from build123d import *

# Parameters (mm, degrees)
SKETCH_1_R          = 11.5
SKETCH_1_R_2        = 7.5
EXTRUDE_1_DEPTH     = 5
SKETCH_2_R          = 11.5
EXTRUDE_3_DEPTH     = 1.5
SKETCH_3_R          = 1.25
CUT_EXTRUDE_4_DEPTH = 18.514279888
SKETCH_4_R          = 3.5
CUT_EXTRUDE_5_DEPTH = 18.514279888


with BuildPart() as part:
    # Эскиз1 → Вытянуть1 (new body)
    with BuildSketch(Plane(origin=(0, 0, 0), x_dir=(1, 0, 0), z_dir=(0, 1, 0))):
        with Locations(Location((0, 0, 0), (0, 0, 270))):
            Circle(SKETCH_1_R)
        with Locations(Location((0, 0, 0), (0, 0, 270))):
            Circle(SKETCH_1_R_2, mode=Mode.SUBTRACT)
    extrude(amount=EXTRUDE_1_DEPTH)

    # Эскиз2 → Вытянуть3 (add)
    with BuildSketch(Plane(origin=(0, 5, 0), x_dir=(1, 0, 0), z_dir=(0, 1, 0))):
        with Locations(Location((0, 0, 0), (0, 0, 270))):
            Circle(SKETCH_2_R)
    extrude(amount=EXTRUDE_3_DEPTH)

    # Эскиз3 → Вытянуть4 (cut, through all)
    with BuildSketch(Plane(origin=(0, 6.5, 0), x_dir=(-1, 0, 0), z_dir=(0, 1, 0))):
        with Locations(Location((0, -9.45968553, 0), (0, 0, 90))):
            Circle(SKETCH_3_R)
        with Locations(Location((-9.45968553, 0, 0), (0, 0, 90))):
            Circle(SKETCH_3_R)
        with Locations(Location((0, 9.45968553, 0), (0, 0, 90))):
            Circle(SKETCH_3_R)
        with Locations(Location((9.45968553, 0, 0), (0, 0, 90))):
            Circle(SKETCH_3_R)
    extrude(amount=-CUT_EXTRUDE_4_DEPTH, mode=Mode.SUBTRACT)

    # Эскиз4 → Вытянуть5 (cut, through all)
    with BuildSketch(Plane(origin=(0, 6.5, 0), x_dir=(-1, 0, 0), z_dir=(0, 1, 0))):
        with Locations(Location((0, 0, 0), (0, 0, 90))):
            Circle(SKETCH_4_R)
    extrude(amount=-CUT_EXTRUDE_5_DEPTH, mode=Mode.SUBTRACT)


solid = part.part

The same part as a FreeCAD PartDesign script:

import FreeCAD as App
import Part
import Sketcher
from FreeCAD import Vector
Q = App.Units.Quantity

doc = App.newDocument("Part")
body = doc.addObject("PartDesign::Body", "Body")

# Sketch on XZ plane
sketch1 = doc.addObject("Sketcher::SketchObject", "Sketch")
body.addObject(sketch1)
sketch1.AttachmentSupport = (doc.XZ_Plane, [""])
sketch1.MapMode = "FlatFace"
sketch1.addGeometry([
    Part.Circle(Vector(0, 0, 0), Vector(0, 0, 1), 11.5),
    Part.Circle(Vector(0, 0, 0), Vector(0, 0, 1), 7.5),
], False)
sketch1.addConstraint([
    Sketcher.Constraint("Coincident", 0, 3, -1, 1),
    Sketcher.Constraint("Coincident", 1, 3, -1, 1),
    Sketcher.Constraint("Diameter", 0, Q("23 mm")),
    Sketcher.Constraint("Diameter", 1, Q("15 mm")),
])
pad1 = doc.addObject("PartDesign::Pad", "Pad")
body.addObject(pad1)
pad1.Profile = sketch1
pad1.Length = 5
pad1.Reversed = True

# Sketch on XZ plane
sketch2 = doc.addObject("Sketcher::SketchObject", "Sketch001")
body.addObject(sketch2)
sketch2.AttachmentSupport = (doc.XZ_Plane, [""])
sketch2.MapMode = "FlatFace"
sketch2.AttachmentOffset = App.Placement(Vector(0, 0, -5), App.Rotation())
sketch2.addGeometry(Part.Circle(Vector(0, 0, 0), Vector(0, 0, 1), 11.5), False)
sketch2.addConstraint([
    Sketcher.Constraint("Coincident", 0, 3, -1, 1),
    Sketcher.Constraint("Diameter", 0, Q("23 mm")),
])
pad2 = doc.addObject("PartDesign::Pad", "Pad001")
body.addObject(pad2)
pad2.Profile = sketch2
pad2.Length = 1.5
pad2.Reversed = True

# Sketch on XZ plane
sketch3 = doc.addObject("Sketcher::SketchObject", "Sketch002")
body.addObject(sketch3)
sketch3.AttachmentSupport = (doc.XZ_Plane, [""])
sketch3.MapMode = "FlatFace"
sketch3.AttachmentOffset = App.Placement(Vector(0, 0, -6.5), App.Rotation())
sketch3.addGeometry([
    Part.Circle(Vector(0, -9.459686, 0), Vector(0, 0, 1), 1.25),
    Part.Circle(Vector(9.459686, 0, 0), Vector(0, 0, 1), 1.25),
    Part.Circle(Vector(0, 9.459686, 0), Vector(0, 0, 1), 1.25),
    Part.Circle(Vector(-9.459686, 0, 0), Vector(0, 0, 1), 1.25),
], False)
sketch3.addConstraint([
    Sketcher.Constraint("Equal", 0, 1),
    Sketcher.Constraint("Equal", 1, 2),
    Sketcher.Constraint("Equal", 2, 3),
    Sketcher.Constraint("Symmetric", 0, 3, 2, 3, -1, 1),
    Sketcher.Constraint("Symmetric", 1, 3, 3, 3, -1, 1),
    Sketcher.Constraint("PointOnObject", 0, 3, -2),
    Sketcher.Constraint("PointOnObject", 1, 3, -1),
    Sketcher.Constraint("Diameter", 0, Q("2.5 mm")),
    Sketcher.Constraint("DistanceY", 0, 3, 2, 3, Q("18.919371 mm")),
    Sketcher.Constraint("DistanceX", 3, 3, 1, 3, Q("18.919371 mm")),
])
pocket1 = doc.addObject("PartDesign::Pocket", "Pocket")
body.addObject(pocket1)
pocket1.Profile = sketch3
pocket1.Type = "ThroughAll"
pocket1.Reversed = True

# Sketch on XZ plane
sketch4 = doc.addObject("Sketcher::SketchObject", "Sketch003")
body.addObject(sketch4)
sketch4.AttachmentSupport = (doc.XZ_Plane, [""])
sketch4.MapMode = "FlatFace"
sketch4.AttachmentOffset = App.Placement(Vector(0, 0, -6.5), App.Rotation())
sketch4.addGeometry(Part.Circle(Vector(0, 0, 0), Vector(0, 0, 1), 3.5), False)
sketch4.addConstraint([
    Sketcher.Constraint("Coincident", 0, 3, -1, 1),
    Sketcher.Constraint("Diameter", 0, Q("7 mm")),
])
pocket2 = doc.addObject("PartDesign::Pocket", "Pocket001")
body.addObject(pocket2)
pocket2.Profile = sketch4
pocket2.Type = "ThroughAll"
pocket2.Reversed = True

doc.recompute()
